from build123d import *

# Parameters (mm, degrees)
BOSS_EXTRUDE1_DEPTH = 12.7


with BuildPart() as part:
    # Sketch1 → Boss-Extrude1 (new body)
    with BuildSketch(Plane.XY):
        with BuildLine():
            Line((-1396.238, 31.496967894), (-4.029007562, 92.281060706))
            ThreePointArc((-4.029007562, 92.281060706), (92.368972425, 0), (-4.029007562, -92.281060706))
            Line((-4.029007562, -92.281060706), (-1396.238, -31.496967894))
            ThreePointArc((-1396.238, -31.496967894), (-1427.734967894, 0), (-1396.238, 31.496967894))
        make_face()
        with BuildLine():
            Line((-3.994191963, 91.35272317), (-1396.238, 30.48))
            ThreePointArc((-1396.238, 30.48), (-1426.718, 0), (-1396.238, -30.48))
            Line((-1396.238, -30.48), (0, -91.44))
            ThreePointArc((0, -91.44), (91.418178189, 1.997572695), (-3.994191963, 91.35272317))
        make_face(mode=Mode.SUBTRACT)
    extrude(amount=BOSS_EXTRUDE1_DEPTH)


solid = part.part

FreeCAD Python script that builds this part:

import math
import FreeCAD as App
import Part
import Sketcher
Q = App.Units.Quantity

doc = App.newDocument("Part")
body = doc.addObject("PartDesign::Body", "Body")

sketch1 = doc.addObject("Sketcher::SketchObject", "Sketch")
body.addObject(sketch1)
sketch1.AttachmentSupport = (doc.XY_Plane, [""])
sketch1.MapMode = "FlatFace"
sketch1.addGeometry(Part.LineSegment(App.Vector(-4, 92, 0), App.Vector(-1396, 31, 0)), False)
sketch1.addGeometry(Part.ArcOfCircle(Part.Circle(App.Vector(-1396, 0, 0), App.Vector(0, 0, 1), 31), math.radians(90), math.radians(270)), False)
sketch1.addGeometry(Part.LineSegment(App.Vector(-1396, -31, 0), App.Vector(-4, -92, 0)), False)
sketch1.addGeometry(Part.ArcOfCircle(Part.Circle(App.Vector(0, 0, 0), App.Vector(0, 0, 1), 92), math.radians(-92), math.radians(92)), False)
sketch1.addGeometry(Part.ArcOfCircle(Part.Circle(App.Vector(0, 0, 0), App.Vector(0, 0, 1), 91), math.radians(-90), math.radians(93)), False)
sketch1.addGeometry(Part.LineSegment(App.Vector(0, -91, 0), App.Vector(-1396, -30, 0)), False)
sketch1.addGeometry(Part.ArcOfCircle(Part.Circle(App.Vector(-1396, 0, 0), App.Vector(0, 0, 1), 30), math.radians(90), math.radians(270)), False)
sketch1.addGeometry(Part.LineSegment(App.Vector(-1396, 30, 0), App.Vector(-4, 91, 0)), False)
sketch1.addConstraint(Sketcher.Constraint("Coincident", 0, 2, 1, 1))
sketch1.addConstraint(Sketcher.Constraint("Coincident", 1, 2, 2, 1))
sketch1.addConstraint(Sketcher.Constraint("Tangent", 2, 2, 3, 1))
sketch1.addConstraint(Sketcher.Constraint("Tangent", 3, 2, 0, 1))
sketch1.addConstraint(Sketcher.Constraint("Coincident", 4, 1, 5, 1))
sketch1.addConstraint(Sketcher.Constraint("Coincident", 5, 2, 6, 2))
sketch1.addConstraint(Sketcher.Constraint("Coincident", 6, 1, 7, 1))
sketch1.addConstraint(Sketcher.Constraint("Tangent", 7, 2, 4, 2))
sketch1.addConstraint(Sketcher.Constraint("Coincident", 3, 3, -1, 1))
sketch1.addConstraint(Sketcher.Constraint("Coincident", 4, 3, -1, 1))
sketch1.addConstraint(Sketcher.Constraint("Coincident", 6, 3, 1, 3))
sketch1.addConstraint(Sketcher.Constraint("Symmetric", 0, 2, 1, 2, -1))
sketch1.addConstraint(Sketcher.Constraint("PointOnObject", 4, 1, -2))
sketch1.addConstraint(Sketcher.Constraint("Parallel", 2, 5))
sketch1.addConstraint(Sketcher.Constraint("Vertical", 6, 3, 0, 2))
sketch1.addConstraint(Sketcher.Constraint("Vertical", 1, 2, 5, 2))
sketch1.addConstraint(Sketcher.Constraint("Vertical", 5, 2, 6, 1))
sketch1.addConstraint(Sketcher.Constraint("Radius", 4, Q("3.6 in")))
sketch1.addConstraint(Sketcher.Constraint("Radius", 6, Q("1.2 in")))
sketch1.addConstraint(Sketcher.Constraint("DistanceX", 1, 3, -1, 1, Q("54.97 in")))
sketch1.addConstraint(Sketcher.Constraint("Radius", 1, Q("31.496968 mm")))
pad1 = doc.addObject("PartDesign::Pad", "Pad")
body.addObject(pad1)
pad1.Profile = sketch1
pad1.Length = Q("0.5 in")

doc.recompute()
